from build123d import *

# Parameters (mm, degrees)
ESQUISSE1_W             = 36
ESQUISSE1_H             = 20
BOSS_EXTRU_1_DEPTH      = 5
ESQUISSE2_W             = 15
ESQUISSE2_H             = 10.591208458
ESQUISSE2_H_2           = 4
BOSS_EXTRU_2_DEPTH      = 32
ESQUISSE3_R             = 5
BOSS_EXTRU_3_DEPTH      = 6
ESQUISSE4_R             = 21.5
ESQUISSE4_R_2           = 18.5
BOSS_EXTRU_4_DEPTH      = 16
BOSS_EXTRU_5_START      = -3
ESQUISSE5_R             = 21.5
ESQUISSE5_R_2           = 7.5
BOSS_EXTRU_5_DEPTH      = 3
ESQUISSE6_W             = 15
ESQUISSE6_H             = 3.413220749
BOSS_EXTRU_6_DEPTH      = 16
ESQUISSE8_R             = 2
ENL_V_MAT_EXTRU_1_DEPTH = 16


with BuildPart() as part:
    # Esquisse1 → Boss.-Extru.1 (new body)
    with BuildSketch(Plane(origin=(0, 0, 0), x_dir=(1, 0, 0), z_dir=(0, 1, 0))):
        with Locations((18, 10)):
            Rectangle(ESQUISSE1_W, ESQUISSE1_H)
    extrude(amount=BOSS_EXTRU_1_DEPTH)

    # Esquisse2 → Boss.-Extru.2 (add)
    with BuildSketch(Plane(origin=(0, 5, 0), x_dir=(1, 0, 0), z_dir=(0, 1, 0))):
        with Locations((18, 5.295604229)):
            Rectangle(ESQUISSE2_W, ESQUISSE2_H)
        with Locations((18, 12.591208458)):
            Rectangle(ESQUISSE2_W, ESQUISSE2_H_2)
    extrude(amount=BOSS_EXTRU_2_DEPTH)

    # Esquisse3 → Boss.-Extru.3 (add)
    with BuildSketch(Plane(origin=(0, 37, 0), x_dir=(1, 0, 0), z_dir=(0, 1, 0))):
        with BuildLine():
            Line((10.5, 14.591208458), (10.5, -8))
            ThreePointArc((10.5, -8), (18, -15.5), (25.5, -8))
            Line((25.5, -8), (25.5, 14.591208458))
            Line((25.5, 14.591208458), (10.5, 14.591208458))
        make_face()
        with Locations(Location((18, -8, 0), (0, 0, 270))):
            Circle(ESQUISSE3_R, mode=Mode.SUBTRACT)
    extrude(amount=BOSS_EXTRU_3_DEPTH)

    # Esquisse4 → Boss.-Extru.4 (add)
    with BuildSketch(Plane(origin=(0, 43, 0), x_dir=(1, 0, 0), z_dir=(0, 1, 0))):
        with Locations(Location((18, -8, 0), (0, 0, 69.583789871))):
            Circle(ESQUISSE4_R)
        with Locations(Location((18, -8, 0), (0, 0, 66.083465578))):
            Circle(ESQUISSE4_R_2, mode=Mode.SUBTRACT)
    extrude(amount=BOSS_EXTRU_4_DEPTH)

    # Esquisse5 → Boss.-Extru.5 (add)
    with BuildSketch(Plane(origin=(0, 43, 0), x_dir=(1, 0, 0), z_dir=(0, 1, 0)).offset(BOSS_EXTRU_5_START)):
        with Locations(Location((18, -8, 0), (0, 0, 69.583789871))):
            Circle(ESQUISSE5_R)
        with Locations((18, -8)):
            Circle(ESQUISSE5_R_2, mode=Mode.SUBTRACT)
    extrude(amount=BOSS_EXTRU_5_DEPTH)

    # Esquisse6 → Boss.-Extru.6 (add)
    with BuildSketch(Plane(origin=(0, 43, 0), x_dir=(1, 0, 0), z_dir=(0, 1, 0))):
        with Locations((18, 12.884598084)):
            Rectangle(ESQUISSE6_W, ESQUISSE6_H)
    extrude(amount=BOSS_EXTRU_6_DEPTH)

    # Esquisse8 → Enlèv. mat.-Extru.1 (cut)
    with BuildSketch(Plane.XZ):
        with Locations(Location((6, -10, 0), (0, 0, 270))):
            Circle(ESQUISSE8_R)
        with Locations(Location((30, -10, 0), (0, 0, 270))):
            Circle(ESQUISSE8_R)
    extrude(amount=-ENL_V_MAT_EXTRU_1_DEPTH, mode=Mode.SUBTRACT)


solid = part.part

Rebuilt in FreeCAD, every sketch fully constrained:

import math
import FreeCAD as App
import Part
import Sketcher
from FreeCAD import Vector
Q = App.Units.Quantity


def add_polygon(sketch, points):
    """Adds a closed chain of lines whose ends are joined by coincident constraints."""
    first, n = sketch.GeometryCount, len(points)
    for a, b in zip(points, points[1:] + points[:1]):
        sketch.addGeometry(Part.LineSegment(App.Vector(*a, 0), App.Vector(*b, 0)), False)
    for i in range(n):
        sketch.addConstraint(Sketcher.Constraint("Coincident", first + i, 2, first + (i + 1) % n, 1))

doc = App.newDocument("Part")
params = doc.addObject("Spreadsheet::Sheet", "Params")
for row, (alias, value) in enumerate([
    ("sketch1_width", "36 mm"),
    ("sketch1_height", "20 mm"),
    ("pad1_length", "5 mm"),
    ("sketch2_width", "15 mm"),
    ("pad2_length", "32 mm"),
    ("sketch3_diameter", "10 mm"),
    ("sketch3_radius", "7.5 mm"),
    ("pad3_length", "6 mm"),
    ("sketch4_diameter", "43 mm"),
    ("sketch4_diameter2", "37 mm"),
    ("pad4_length", "16 mm"),
    ("sketch5_diameter", "43 mm"),
    ("sketch5_diameter2", "15 mm"),
    ("pad5_length", "3 mm"),
    ("sketch6_width", "15 mm"),
    ("pad6_length", "16 mm"),
    ("sketch7_diameter", "4 mm"),
    ("pocket1_length", "16 mm"),
], start=1):
    params.set(f"A{row}", alias)
    params.set(f"B{row}", "=" + value)
    params.setAlias(f"B{row}", alias)

body = doc.addObject("PartDesign::Body", "Body")

sketch1 = body.newObject("Sketcher::SketchObject", "Sketch")
sketch1.AttachmentSupport = (doc.getObject("XZ_Plane"), [""])
sketch1.MapMode = "FlatFace"
add_polygon(sketch1, [(0, -20), (0, 0), (36, 0), (36, -20)])
sketch1.addConstraint([
    Sketcher.Constraint("Vertical", 0),
    Sketcher.Constraint("Horizontal", 1),
    Sketcher.Constraint("Vertical", 2),
    Sketcher.Constraint("Horizontal", 3),
    Sketcher.Constraint("Coincident", 0, 2, -1, 1),
    Sketcher.Constraint("DistanceX", 1, 1, 1, 2, Q("36 mm")),
    Sketcher.Constraint("DistanceY", 0, 1, 0, 2, Q("20 mm")),
])
sketch1.setExpression("Constraints[9]", "Params.sketch1_width")
sketch1.setExpression("Constraints[10]", "Params.sketch1_height")
pad1 = body.newObject("PartDesign::Pad", "Pad")
pad1.Profile = sketch1
pad1.setExpression("Length", "Params.pad1_length")
pad1.Reversed = True

sketch2 = body.newObject("Sketcher::SketchObject", "Sketch001")
sketch2.AttachmentSupport = (doc.getObject("XZ_Plane"), [""])
sketch2.MapMode = "FlatFace"
sketch2.AttachmentOffset = App.Placement(Vector(0, 0, -5), App.Rotation())
add_polygon(sketch2, [(10.5, 0), (25.5, 0), (25.5, -14.591208), (10.5, -14.591208)])
sketch2.addConstraint([
    Sketcher.Constraint("Horizontal", 0),
    Sketcher.Constraint("Vertical", 1),
    Sketcher.Constraint("Horizontal", 2),
    Sketcher.Constraint("Vertical", 3),
    Sketcher.Constraint("PointOnObject", 0, 2, -1),
    Sketcher.Constraint("DistanceX", 0, 1, 0, 2, Q("15 mm")),
    Sketcher.Constraint("DistanceX", -1, 1, 0, 2, Q("25.5 mm")),
    Sketcher.Constraint("DistanceY", 1, 2, 1, 1, Q("14.591208 mm")),
])
sketch2.setExpression("Constraints[9]", "Params.sketch2_width")
pad2 = body.newObject("PartDesign::Pad", "Pad001")
pad2.Profile = sketch2
pad2.setExpression("Length", "Params.pad2_length")
pad2.Reversed = True

sketch3 = body.newObject("Sketcher::SketchObject", "Sketch002")
sketch3.AttachmentSupport = (doc.getObject("XZ_Plane"), [""])
sketch3.MapMode = "FlatFace"
sketch3.AttachmentOffset = App.Placement(Vector(0, 0, -37), App.Rotation())
sketch3.addGeometry([
    Part.LineSegment(Vector(10.5, -14.591208, 0), Vector(10.5, 8, 0)),
    Part.ArcOfCircle(Part.Circle(Vector(18, 8, 0), Vector(0, 0, 1), 7.5), math.radians(0), math.radians(180)),
    Part.LineSegment(Vector(25.5, 8, 0), Vector(25.5, -14.591208, 0)),
    Part.LineSegment(Vector(25.5, -14.591208, 0), Vector(10.5, -14.591208, 0)),
    Part.Circle(Vector(18, 8, 0), Vector(0, 0, 1), 5),
], False)
sketch3.addConstraint([
    Sketcher.Constraint("Tangent", 0, 2, 1, 2),
    Sketcher.Constraint("Tangent", 1, 1, 2, 1),
    Sketcher.Constraint("Coincident", 2, 2, 3, 1),
    Sketcher.Constraint("Coincident", 3, 2, 0, 1),
    Sketcher.Constraint("Vertical", 0),
    Sketcher.Constraint("Vertical", 2),
    Sketcher.Constraint("Horizontal", 3),
    Sketcher.Constraint("Coincident", 4, 3, 1, 3),
    Sketcher.Constraint("Diameter", 4, Q("10 mm")),
    Sketcher.Constraint("Radius", 1, Q("7.5 mm")),
    Sketcher.Constraint("DistanceX", -1, 1, 1, 3, Q("18 mm")),
    Sketcher.Constraint("DistanceY", -1, 1, 1, 3, Q("8 mm")),
    Sketcher.Constraint("DistanceY", 0, 1, 0, 2, Q("22.591208 mm")),
])
sketch3.setExpression("Constraints[8]", "Params.sketch3_diameter")
sketch3.setExpression("Constraints[9]", "Params.sketch3_radius")
pad3 = body.newObject("PartDesign::Pad", "Pad002")
pad3.Profile = sketch3
pad3.setExpression("Length", "Params.pad3_length")
pad3.Reversed = True

sketch4 = body.newObject("Sketcher::SketchObject", "Sketch003")
sketch4.AttachmentSupport = (doc.getObject("XZ_Plane"), [""])
sketch4.MapMode = "FlatFace"
sketch4.AttachmentOffset = App.Placement(Vector(0, 0, -43), App.Rotation())
sketch4.addGeometry([
    Part.Circle(Vector(18, 8, 0), Vector(0, 0, 1), 21.5),
    Part.Circle(Vector(18, 8, 0), Vector(0, 0, 1), 18.5),
], False)
sketch4.addConstraint([
    Sketcher.Constraint("Coincident", 1, 3, 0, 3),
    Sketcher.Constraint("Diameter", 0, Q("43 mm")),
    Sketcher.Constraint("Diameter", 1, Q("37 mm")),
    Sketcher.Constraint("DistanceX", -1, 1, 0, 3, Q("18 mm")),
    Sketcher.Constraint("DistanceY", -1, 1, 0, 3, Q("8 mm")),
])
sketch4.setExpression("Constraints[1]", "Params.sketch4_diameter")
sketch4.setExpression("Constraints[2]", "Params.sketch4_diameter2")
pad4 = body.newObject("PartDesign::Pad", "Pad003")
pad4.Profile = sketch4
pad4.setExpression("Length", "Params.pad4_length")
pad4.Reversed = True

sketch5 = body.newObject("Sketcher::SketchObject", "Sketch004")
sketch5.AttachmentSupport = (doc.getObject("XZ_Plane"), [""])
sketch5.MapMode = "FlatFace"
sketch5.AttachmentOffset = App.Placement(Vector(0, 0, -40), App.Rotation())
sketch5.addGeometry([
    Part.Circle(Vector(18, 8, 0), Vector(0, 0, 1), 21.5),
    Part.Circle(Vector(18, 8, 0), Vector(0, 0, 1), 7.5),
], False)
sketch5.addConstraint([
    Sketcher.Constraint("Coincident", 1, 3, 0, 3),
    Sketcher.Constraint("Diameter", 0, Q("43 mm")),
    Sketcher.Constraint("Diameter", 1, Q("15 mm")),
    Sketcher.Constraint("DistanceX", -1, 1, 0, 3, Q("18 mm")),
    Sketcher.Constraint("DistanceY", -1, 1, 0, 3, Q("8 mm")),
])
sketch5.setExpression("Constraints[1]", "Params.sketch5_diameter")
sketch5.setExpression("Constraints[2]", "Params.sketch5_diameter2")
pad5 = body.newObject("PartDesign::Pad", "Pad004")
pad5.Profile = sketch5
pad5.setExpression("Length", "Params.pad5_length")
pad5.Reversed = True

sketch6 = body.newObject("Sketcher::SketchObject", "Sketch005")
sketch6.AttachmentSupport = (doc.getObject("XZ_Plane"), [""])
sketch6.MapMode = "FlatFace"
sketch6.AttachmentOffset = App.Placement(Vector(0, 0, -43), App.Rotation())
add_polygon(sketch6, [(10.5, -14.591208), (10.5, -11.177988), (25.5, -11.177988), (25.5, -14.591208)])
sketch6.addConstraint([
    Sketcher.Constraint("Vertical", 0),
    Sketcher.Constraint("Horizontal", 1),
    Sketcher.Constraint("Vertical", 2),
    Sketcher.Constraint("Horizontal", 3),
    Sketcher.Constraint("DistanceX", 1, 1, 1, 2, Q("15 mm")),
    Sketcher.Constraint("DistanceX", -1, 1, 0, 2, Q("10.5 mm")),
    Sketcher.Constraint("DistanceY", 0, 1, 0, 2, Q("3.413221 mm")),
    Sketcher.Constraint("DistanceY", 2, 2, -1, 1, Q("14.591208 mm")),
])
sketch6.setExpression("Constraints[8]", "Params.sketch6_width")
pad6 = body.newObject("PartDesign::Pad", "Pad005")
pad6.Profile = sketch6
pad6.setExpression("Length", "Params.pad6_length")
pad6.Reversed = True

sketch7 = body.newObject("Sketcher::SketchObject", "Sketch006")
sketch7.AttachmentSupport = (doc.getObject("XZ_Plane"), [""])
sketch7.MapMode = "FlatFace"
sketch7.addGeometry([
    Part.Circle(Vector(6, -10, 0), Vector(0, 0, 1), 2),
    Part.Circle(Vector(30, -10, 0), Vector(0, 0, 1), 2),
], False)
sketch7.addConstraint([
    Sketcher.Constraint("Equal", 0, 1),
    Sketcher.Constraint("Horizontal", 0, 3, 1, 3),
    Sketcher.Constraint("Diameter", 0, Q("4 mm")),
    Sketcher.Constraint("DistanceX", -1, 1, 0, 3, Q("6 mm")),
    Sketcher.Constraint("DistanceY", 0, 3, -1, 1, Q("10 mm")),
    Sketcher.Constraint("DistanceX", -1, 1, 1, 3, Q("30 mm")),
])
sketch7.setExpression("Constraints[2]", "Params.sketch7_diameter")
pocket1 = body.newObject("PartDesign::Pocket", "Pocket")
pocket1.Profile = sketch7
pocket1.setExpression("Length", "Params.pocket1_length")

doc.recompute()
